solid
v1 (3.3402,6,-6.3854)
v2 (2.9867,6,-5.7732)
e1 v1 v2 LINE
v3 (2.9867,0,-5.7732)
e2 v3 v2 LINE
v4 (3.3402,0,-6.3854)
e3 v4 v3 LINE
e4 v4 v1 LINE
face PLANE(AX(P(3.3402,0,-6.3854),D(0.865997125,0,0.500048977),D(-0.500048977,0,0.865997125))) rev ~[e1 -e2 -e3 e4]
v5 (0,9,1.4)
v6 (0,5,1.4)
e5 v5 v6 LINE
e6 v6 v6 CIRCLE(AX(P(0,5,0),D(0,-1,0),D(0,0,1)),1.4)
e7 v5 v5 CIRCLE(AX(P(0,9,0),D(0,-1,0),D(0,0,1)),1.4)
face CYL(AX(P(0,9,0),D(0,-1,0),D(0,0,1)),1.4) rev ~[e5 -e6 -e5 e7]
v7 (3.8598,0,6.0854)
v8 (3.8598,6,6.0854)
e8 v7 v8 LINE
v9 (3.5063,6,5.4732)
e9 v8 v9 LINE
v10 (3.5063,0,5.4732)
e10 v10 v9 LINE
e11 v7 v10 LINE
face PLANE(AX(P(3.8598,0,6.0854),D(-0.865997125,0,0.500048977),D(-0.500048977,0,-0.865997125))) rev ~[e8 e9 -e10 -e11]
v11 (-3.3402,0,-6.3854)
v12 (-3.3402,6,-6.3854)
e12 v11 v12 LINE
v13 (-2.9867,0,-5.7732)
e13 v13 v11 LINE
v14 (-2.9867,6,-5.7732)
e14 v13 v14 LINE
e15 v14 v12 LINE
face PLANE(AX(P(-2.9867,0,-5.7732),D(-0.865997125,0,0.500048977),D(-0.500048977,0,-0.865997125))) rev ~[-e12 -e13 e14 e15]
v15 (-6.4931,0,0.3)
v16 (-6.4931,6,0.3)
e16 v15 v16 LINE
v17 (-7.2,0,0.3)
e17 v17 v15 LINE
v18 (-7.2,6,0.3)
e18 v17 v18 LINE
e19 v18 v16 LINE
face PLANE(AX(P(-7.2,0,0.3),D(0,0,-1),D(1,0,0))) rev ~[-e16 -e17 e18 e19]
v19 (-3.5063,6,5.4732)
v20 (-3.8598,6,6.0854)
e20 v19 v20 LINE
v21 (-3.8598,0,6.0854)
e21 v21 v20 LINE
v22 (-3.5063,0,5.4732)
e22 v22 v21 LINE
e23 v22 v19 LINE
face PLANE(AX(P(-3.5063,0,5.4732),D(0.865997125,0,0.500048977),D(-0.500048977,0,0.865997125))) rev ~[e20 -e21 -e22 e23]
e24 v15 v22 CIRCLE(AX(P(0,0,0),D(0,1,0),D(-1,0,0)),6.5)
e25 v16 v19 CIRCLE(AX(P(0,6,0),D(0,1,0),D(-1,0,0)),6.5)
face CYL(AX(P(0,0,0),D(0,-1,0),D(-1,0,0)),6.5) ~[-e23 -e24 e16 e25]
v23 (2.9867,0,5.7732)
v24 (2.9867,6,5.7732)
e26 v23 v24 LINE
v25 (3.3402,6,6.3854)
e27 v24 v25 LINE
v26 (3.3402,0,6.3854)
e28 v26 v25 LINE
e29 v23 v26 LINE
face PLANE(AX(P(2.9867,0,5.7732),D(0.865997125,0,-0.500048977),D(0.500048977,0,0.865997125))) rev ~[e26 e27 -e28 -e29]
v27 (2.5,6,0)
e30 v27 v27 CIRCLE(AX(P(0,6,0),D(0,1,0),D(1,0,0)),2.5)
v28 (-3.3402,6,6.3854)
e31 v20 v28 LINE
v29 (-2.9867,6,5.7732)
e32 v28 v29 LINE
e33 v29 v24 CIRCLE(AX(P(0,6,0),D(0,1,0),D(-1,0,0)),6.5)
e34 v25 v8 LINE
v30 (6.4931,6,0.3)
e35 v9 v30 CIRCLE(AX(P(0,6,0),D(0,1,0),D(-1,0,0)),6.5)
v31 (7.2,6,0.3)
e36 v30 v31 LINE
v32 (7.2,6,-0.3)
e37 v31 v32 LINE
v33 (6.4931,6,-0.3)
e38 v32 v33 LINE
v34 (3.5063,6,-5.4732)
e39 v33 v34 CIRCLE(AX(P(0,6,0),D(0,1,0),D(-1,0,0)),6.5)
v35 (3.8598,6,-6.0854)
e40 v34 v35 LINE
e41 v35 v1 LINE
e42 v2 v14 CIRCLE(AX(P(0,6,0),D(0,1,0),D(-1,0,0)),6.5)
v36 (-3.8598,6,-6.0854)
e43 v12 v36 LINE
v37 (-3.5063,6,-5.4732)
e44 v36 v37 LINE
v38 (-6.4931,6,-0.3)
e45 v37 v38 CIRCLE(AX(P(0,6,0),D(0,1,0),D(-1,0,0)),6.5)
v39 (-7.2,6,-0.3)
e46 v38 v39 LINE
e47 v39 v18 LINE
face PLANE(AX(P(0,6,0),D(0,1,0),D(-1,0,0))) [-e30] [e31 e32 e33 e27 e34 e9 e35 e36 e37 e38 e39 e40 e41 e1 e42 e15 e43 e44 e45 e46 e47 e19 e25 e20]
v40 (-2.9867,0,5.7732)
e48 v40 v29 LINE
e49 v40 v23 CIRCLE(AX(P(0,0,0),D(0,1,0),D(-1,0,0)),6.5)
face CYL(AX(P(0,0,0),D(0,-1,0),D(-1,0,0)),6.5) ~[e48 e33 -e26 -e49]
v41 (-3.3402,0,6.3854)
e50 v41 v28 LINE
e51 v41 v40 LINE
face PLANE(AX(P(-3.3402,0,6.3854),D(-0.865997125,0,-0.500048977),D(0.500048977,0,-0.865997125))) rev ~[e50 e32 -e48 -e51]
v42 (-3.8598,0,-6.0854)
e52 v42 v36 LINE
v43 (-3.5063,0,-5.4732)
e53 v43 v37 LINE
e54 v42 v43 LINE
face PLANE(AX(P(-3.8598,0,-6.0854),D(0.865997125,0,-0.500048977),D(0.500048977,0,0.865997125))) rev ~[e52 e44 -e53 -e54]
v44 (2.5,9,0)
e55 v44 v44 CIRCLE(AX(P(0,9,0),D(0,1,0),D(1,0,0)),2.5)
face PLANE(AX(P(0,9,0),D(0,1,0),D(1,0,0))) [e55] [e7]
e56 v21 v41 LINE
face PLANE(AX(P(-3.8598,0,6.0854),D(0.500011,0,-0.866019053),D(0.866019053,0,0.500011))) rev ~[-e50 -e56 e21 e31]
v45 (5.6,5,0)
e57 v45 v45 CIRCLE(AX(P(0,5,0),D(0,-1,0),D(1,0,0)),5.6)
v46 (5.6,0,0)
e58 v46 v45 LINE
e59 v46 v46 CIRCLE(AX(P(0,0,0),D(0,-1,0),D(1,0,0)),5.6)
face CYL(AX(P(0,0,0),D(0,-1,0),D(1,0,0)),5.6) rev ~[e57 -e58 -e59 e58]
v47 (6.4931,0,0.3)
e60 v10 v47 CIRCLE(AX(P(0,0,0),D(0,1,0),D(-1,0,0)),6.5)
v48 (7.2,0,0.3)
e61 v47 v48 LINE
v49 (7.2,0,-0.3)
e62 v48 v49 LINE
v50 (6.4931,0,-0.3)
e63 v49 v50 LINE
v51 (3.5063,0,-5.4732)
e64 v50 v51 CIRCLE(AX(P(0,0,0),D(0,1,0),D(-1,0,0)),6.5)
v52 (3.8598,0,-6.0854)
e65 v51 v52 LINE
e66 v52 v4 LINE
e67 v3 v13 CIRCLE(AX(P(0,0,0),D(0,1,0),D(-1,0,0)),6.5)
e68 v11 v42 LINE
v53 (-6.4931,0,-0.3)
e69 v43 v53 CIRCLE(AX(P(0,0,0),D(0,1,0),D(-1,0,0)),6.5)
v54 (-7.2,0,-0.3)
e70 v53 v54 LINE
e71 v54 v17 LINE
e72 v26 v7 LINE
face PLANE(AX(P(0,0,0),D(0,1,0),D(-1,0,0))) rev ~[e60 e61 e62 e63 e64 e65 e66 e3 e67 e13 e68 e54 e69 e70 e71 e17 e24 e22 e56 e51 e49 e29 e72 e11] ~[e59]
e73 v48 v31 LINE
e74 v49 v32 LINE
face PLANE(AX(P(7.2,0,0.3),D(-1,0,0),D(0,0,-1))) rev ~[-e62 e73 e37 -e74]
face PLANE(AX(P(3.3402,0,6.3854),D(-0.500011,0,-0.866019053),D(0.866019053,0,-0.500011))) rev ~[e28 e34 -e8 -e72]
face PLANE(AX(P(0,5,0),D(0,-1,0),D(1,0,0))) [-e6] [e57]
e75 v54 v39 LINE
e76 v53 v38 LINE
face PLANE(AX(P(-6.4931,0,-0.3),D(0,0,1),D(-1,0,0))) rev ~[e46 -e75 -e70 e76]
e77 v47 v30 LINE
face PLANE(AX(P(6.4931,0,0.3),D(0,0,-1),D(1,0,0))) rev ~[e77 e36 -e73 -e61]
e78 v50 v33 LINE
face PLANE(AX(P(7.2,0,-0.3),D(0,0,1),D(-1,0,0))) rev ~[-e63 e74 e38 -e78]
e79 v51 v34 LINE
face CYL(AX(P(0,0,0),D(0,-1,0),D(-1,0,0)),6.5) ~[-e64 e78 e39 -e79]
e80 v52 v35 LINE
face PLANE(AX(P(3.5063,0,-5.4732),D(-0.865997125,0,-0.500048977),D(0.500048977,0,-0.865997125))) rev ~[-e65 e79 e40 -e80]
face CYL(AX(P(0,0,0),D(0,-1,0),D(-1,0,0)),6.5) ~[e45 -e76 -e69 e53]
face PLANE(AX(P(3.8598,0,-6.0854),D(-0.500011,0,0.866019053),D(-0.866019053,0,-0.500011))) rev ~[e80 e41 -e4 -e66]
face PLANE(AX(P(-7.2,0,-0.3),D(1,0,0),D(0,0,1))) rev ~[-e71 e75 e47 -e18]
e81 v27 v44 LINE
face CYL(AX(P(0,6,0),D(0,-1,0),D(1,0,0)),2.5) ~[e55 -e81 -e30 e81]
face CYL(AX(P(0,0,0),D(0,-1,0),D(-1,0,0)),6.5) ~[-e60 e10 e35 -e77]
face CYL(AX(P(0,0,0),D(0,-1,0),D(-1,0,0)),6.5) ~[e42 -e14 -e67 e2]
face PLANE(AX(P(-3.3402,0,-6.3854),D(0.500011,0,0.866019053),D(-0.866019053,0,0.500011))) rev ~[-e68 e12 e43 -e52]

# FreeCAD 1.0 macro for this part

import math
import FreeCAD as App
import Part
import Sketcher

V = App.Vector
Q = App.Units.Quantity

doc = App.newDocument("Part")
body = doc.addObject("PartDesign::Body", "Body")

sketch1 = body.newObject("Sketcher::SketchObject", "Sketch")
sketch1.AttachmentSupport = (doc.getObject("XZ_Plane"), [""])
sketch1.MapMode = "FlatFace"
sketch1.addGeometry([
    Part.LineSegment(V(-6.5, -0.3, 0), V(-7.2, -0.3, 0)),
    Part.LineSegment(V(-7.2, -0.3, 0), V(-7.2, 0.3, 0)),
    Part.LineSegment(V(-7.2, 0.3, 0), V(-6.5, 0.3, 0)),
    Part.ArcOfCircle(Part.Circle(V(0, 0, 0), V(0, 0, 1), 6.5), math.radians(123), math.radians(177)),
    Part.LineSegment(V(-3.5, 5.5, 0), V(-3.9, 6.1, 0)),
    Part.LineSegment(V(-3.9, 6.1, 0), V(-3.3, 6.4, 0)),
    Part.LineSegment(V(-3.3, 6.4, 0), V(-3, 5.8, 0)),
    Part.ArcOfCircle(Part.Circle(V(0, 0, 0), V(0, 0, 1), 6.5), math.radians(63), math.radians(117)),
    Part.LineSegment(V(3, 5.8, 0), V(3.3, 6.4, 0)),
    Part.LineSegment(V(3.3, 6.4, 0), V(3.9, 6.1, 0)),
    Part.LineSegment(V(3.9, 6.1, 0), V(3.5, 5.5, 0)),
    Part.ArcOfCircle(Part.Circle(V(0, 0, 0), V(0, 0, 1), 6.5), math.radians(3), math.radians(57)),
    Part.LineSegment(V(6.5, 0.3, 0), V(7.2, 0.3, 0)),
    Part.LineSegment(V(7.2, 0.3, 0), V(7.2, -0.3, 0)),
    Part.LineSegment(V(7.2, -0.3, 0), V(6.5, -0.3, 0)),
    Part.ArcOfCircle(Part.Circle(V(0, 0, 0), V(0, 0, 1), 6.5), math.radians(-57), math.radians(-3)),
    Part.LineSegment(V(3.5, -5.5, 0), V(3.9, -6.1, 0)),
    Part.LineSegment(V(3.9, -6.1, 0), V(3.3, -6.4, 0)),
    Part.LineSegment(V(3.3, -6.4, 0), V(3, -5.8, 0)),
    Part.ArcOfCircle(Part.Circle(V(0, 0, 0), V(0, 0, 1), 6.5), math.radians(-117), math.radians(-63)),
    Part.LineSegment(V(-3, -5.8, 0), V(-3.3, -6.4, 0)),
    Part.LineSegment(V(-3.3, -6.4, 0), V(-3.9, -6.1, 0)),
    Part.LineSegment(V(-3.9, -6.1, 0), V(-3.5, -5.5, 0)),
    Part.ArcOfCircle(Part.Circle(V(0, 0, 0), V(0, 0, 1), 6.5), math.radians(-177), math.radians(-123)),
], False)
sketch1.addConstraint([
    Sketcher.Constraint("Coincident", 0, 2, 1, 1),
    Sketcher.Constraint("Coincident", 1, 2, 2, 1),
    Sketcher.Constraint("Coincident", 2, 2, 3, 2),
    Sketcher.Constraint("Coincident", 3, 1, 4, 1),
    Sketcher.Constraint("Coincident", 4, 2, 5, 1),
    Sketcher.Constraint("Coincident", 5, 2, 6, 1),
    Sketcher.Constraint("Coincident", 6, 2, 7, 2),
    Sketcher.Constraint("Coincident", 7, 1, 8, 1),
    Sketcher.Constraint("Coincident", 8, 2, 9, 1),
    Sketcher.Constraint("Coincident", 9, 2, 10, 1),
    Sketcher.Constraint("Coincident", 10, 2, 11, 2),
    Sketcher.Constraint("Coincident", 11, 1, 12, 1),
    Sketcher.Constraint("Coincident", 12, 2, 13, 1),
    Sketcher.Constraint("Coincident", 13, 2, 14, 1),
    Sketcher.Constraint("Coincident", 14, 2, 15, 2),
    Sketcher.Constraint("Coincident", 15, 1, 16, 1),
    Sketcher.Constraint("Coincident", 16, 2, 17, 1),
    Sketcher.Constraint("Coincident", 17, 2, 18, 1),
    Sketcher.Constraint("Coincident", 18, 2, 19, 2),
    Sketcher.Constraint("Coincident", 19, 1, 20, 1),
    Sketcher.Constraint("Coincident", 20, 2, 21, 1),
    Sketcher.Constraint("Coincident", 21, 2, 22, 1),
    Sketcher.Constraint("Coincident", 22, 2, 23, 2),
    Sketcher.Constraint("Coincident", 23, 1, 0, 1),
    Sketcher.Constraint("Horizontal", 0),
    Sketcher.Constraint("Vertical", 1),
    Sketcher.Constraint("Horizontal", 2),
    Sketcher.Constraint("Horizontal", 12),
    Sketcher.Constraint("Vertical", 13),
    Sketcher.Constraint("Horizontal", 14),
    Sketcher.Constraint("Coincident", 3, 3, -1, 1),
    Sketcher.Constraint("Coincident", 7, 3, -1, 1),
    Sketcher.Constraint("Coincident", 11, 3, -1, 1),
    Sketcher.Constraint("Coincident", 15, 3, -1, 1),
    Sketcher.Constraint("Coincident", 19, 3, -1, 1),
    Sketcher.Constraint("Coincident", 23, 3, -1, 1),
    Sketcher.Constraint("Equal", 3, 7),
    Sketcher.Constraint("Equal", 7, 11),
    Sketcher.Constraint("Equal", 11, 15),
    Sketcher.Constraint("Equal", 15, 19),
    Sketcher.Constraint("Equal", 19, 23),
    Sketcher.Constraint("Symmetric", 0, 2, 12, 2, -1, 1),
    Sketcher.Constraint("Symmetric", 4, 2, 16, 2, -1, 1),
    Sketcher.Constraint("Symmetric", 5, 2, 17, 2, -1, 1),
    Sketcher.Constraint("Symmetric", 8, 2, 20, 2, -1, 1),
    Sketcher.Constraint("Symmetric", 9, 2, 21, 2, -1, 1),
    Sketcher.Constraint("Symmetric", 5, 2, 8, 2, -2),
    Sketcher.Constraint("Symmetric", 4, 2, 9, 2, -2),
    Sketcher.Constraint("Perpendicular", 4, 5),
    Sketcher.Constraint("Perpendicular", 5, 6),
    Sketcher.Constraint("Perpendicular", 8, 9),
    Sketcher.Constraint("Perpendicular", 9, 10),
    Sketcher.Constraint("Parallel", 6, 16),
    Sketcher.Constraint("Perpendicular", 17, 18),
    Sketcher.Constraint("Parallel", 10, 20),
    Sketcher.Constraint("Perpendicular", 21, 22),
    Sketcher.Constraint("Horizontal", 2, 2, 11, 1),
    Sketcher.Constraint("Horizontal", 0, 2, 13, 2),
    Sketcher.Constraint("Equal", 4, 6),
    Sketcher.Constraint("Radius", 3, Q("6.5 mm")),
    Sketcher.Constraint("DistanceY", 1, 1, 1, 2, Q("0.6 mm")),
    Sketcher.Constraint("Distance", 5, Q("0.6 mm")),
    Sketcher.Constraint("DistanceX", 0, 2, -1, 1, Q("7.2 mm")),
    Sketcher.Constraint("DistanceX", 4, 2, 8, 2, Q("7.2 mm")),
    Sketcher.Constraint("Angle", 5, Q("30.0007 deg")),
])
pad1 = body.newObject("PartDesign::Pad", "Pad")
pad1.Profile = sketch1
pad1.Length = 6
pad1.Reversed = True

sketch2 = body.newObject("Sketcher::SketchObject", "Sketch001")
sketch2.AttachmentSupport = (doc.getObject("XZ_Plane"), [""])
sketch2.MapMode = "FlatFace"
sketch2.AttachmentOffset = App.Placement(V(0, 0, -6), App.Rotation())
sketch2.addGeometry(Part.Circle(V(0, 0, 0), V(0, 0, 1), 2.5), False)
sketch2.addConstraint([
    Sketcher.Constraint("Coincident", 0, 3, -1, 1),
    Sketcher.Constraint("Diameter", 0, Q("5 mm")),
])
pad2 = body.newObject("PartDesign::Pad", "Pad001")
pad2.Profile = sketch2
pad2.Length = 3
pad2.Reversed = True

sketch3 = body.newObject("Sketcher::SketchObject", "Sketch002")
sketch3.AttachmentSupport = (doc.getObject("XZ_Plane"), [""])
sketch3.MapMode = "FlatFace"
sketch3.AttachmentOffset = App.Placement(V(0, 0, -9), App.Rotation())
sketch3.addGeometry(Part.Circle(V(0, 0, 0), V(0, 0, 1), 1.4), False)
sketch3.addConstraint([
    Sketcher.Constraint("Coincident", 0, 3, -1, 1),
    Sketcher.Constraint("Diameter", 0, Q("2.8 mm")),
])
doc.recompute()
hole = body.newObject("PartDesign::Hole", "Hole")
hole.Profile = sketch3
hole.ThreadType = "None"
hole.Diameter = 2.8
hole.DepthType = "ThroughAll"
hole.Reversed = True

sketch4 = body.newObject("Sketcher::SketchObject", "Sketch003")
sketch4.AttachmentSupport = (doc.getObject("XZ_Plane"), [""])
sketch4.MapMode = "FlatFace"
sketch4.addGeometry(Part.Circle(V(0, 0, 0), V(0, 0, 1), 6), False)
sketch4.addConstraint([
    Sketcher.Constraint("Coincident", 0, 3, -1, 1),
    Sketcher.Constraint("Diameter", 0, Q("11.2 mm")),
])
pocket1 = body.newObject("PartDesign::Pocket", "Pocket")
pocket1.Profile = sketch4
pocket1.Length = 5

doc.recompute()
